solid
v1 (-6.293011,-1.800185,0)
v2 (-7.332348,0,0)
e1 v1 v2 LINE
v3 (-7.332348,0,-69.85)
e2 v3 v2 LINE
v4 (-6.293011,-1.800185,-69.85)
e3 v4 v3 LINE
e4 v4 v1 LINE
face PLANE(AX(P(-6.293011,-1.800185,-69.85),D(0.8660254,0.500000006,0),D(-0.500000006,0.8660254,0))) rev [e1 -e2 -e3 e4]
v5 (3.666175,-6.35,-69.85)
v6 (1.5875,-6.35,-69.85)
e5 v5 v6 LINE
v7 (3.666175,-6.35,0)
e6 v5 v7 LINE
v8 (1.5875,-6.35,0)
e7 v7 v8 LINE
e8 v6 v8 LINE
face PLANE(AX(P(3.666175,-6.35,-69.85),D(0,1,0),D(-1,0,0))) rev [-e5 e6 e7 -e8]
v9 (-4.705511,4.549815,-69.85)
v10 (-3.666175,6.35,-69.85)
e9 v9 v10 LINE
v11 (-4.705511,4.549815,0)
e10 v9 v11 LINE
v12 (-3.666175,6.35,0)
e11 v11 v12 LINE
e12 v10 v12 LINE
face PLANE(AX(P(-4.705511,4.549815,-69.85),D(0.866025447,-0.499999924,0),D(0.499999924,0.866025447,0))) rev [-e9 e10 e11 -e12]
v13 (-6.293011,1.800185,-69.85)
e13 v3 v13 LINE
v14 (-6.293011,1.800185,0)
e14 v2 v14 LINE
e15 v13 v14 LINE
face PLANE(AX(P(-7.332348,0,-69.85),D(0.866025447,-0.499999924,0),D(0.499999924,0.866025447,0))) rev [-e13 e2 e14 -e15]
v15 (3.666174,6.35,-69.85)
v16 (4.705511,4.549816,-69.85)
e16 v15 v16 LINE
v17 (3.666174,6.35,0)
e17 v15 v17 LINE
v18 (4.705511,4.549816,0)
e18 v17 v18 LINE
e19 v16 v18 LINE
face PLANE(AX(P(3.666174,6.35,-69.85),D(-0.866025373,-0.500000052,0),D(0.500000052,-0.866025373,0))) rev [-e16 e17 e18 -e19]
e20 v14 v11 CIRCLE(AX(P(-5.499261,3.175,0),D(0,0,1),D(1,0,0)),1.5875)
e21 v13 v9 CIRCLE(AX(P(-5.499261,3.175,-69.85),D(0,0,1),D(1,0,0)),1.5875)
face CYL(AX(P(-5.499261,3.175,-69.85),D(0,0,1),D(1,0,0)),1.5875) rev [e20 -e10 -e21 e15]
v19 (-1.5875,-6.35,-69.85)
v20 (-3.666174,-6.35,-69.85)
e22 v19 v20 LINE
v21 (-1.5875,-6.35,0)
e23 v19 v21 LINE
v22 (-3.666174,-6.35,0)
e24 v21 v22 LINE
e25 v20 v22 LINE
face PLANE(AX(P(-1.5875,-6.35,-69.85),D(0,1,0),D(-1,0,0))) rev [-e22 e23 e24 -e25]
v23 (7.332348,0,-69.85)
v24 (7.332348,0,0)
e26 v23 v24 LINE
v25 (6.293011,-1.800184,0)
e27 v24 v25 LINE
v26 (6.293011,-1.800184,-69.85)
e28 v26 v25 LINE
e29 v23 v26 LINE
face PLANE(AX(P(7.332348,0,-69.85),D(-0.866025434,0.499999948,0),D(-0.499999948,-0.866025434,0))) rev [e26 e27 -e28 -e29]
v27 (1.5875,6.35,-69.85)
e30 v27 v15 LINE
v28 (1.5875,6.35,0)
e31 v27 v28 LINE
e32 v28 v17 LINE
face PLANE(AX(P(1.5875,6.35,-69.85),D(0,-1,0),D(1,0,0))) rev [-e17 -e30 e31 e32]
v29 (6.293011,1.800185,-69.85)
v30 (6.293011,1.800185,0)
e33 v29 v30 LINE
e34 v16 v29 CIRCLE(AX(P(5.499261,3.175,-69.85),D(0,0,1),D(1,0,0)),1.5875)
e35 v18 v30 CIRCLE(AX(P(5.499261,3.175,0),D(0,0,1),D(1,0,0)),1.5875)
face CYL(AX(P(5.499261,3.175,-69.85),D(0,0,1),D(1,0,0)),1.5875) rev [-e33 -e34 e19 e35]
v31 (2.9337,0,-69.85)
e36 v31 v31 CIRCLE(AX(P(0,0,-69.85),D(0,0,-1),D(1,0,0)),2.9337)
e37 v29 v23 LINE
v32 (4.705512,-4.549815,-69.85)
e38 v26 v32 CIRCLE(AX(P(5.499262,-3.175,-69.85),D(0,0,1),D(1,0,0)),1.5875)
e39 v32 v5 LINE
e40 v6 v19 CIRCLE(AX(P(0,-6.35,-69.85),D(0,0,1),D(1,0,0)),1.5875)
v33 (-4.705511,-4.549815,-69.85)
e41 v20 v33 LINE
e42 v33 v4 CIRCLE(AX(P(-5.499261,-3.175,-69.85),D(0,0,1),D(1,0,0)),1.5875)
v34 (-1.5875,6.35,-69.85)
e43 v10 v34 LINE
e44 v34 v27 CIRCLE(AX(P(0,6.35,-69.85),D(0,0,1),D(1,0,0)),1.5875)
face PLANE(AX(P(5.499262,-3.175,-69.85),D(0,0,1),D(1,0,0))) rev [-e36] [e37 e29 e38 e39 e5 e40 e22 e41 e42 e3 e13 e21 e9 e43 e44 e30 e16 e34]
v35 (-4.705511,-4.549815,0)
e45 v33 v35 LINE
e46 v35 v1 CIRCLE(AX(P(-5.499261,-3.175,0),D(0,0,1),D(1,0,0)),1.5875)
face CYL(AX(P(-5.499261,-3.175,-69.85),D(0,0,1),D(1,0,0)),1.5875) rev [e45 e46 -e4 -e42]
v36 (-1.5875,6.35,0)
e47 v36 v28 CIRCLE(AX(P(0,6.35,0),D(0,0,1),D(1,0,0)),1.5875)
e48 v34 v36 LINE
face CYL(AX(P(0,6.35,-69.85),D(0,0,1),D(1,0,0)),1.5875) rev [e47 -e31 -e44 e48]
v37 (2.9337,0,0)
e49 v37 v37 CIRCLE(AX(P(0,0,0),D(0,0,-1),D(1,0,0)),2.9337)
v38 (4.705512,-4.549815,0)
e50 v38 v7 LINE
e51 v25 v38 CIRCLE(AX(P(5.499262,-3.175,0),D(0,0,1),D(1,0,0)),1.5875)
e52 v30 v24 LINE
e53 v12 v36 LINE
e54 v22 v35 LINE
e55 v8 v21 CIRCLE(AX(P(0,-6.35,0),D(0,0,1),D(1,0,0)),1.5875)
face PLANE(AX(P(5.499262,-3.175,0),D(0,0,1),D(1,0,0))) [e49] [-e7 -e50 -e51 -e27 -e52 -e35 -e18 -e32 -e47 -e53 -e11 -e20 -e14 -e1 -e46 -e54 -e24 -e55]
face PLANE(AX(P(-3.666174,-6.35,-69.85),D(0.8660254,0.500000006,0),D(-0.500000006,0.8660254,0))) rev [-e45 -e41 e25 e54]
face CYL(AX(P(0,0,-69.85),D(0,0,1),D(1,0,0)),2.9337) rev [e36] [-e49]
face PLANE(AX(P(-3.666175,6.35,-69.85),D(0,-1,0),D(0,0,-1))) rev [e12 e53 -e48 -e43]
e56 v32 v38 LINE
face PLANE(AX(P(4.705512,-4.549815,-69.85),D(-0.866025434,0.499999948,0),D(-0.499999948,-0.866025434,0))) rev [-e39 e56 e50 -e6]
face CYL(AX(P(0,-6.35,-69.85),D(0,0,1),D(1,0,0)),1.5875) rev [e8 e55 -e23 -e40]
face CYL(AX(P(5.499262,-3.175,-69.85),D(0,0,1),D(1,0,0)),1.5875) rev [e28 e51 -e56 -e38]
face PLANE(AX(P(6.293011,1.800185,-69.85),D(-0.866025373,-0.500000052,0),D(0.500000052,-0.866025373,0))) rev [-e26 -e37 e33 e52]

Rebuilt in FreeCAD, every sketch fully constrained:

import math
import FreeCAD as App
import Part
import Sketcher
Q = App.Units.Quantity

doc = App.newDocument("Part")
body = doc.addObject("PartDesign::Body", "Body")

sketch1 = body.newObject("Sketcher::SketchObject", "Sketch")
sketch1.AttachmentSupport = (doc.getObject("XY_Plane"), [""])
sketch1.MapMode = "FlatFace"
sketch1.addGeometry([
    Part.LineSegment(App.Vector(4.7, -4.5, 0), App.Vector(3.7, -6.3, 0)),
    Part.LineSegment(App.Vector(3.7, -6.3, 0), App.Vector(1.6, -6.3, 0)),
    Part.ArcOfCircle(Part.Circle(App.Vector(0, -6.3, 0), App.Vector(0, 0, 1), 1.6), math.radians(0), math.radians(180)),
    Part.LineSegment(App.Vector(-1.6, -6.3, 0), App.Vector(-3.7, -6.3, 0)),
    Part.LineSegment(App.Vector(-3.7, -6.3, 0), App.Vector(-4.7, -4.5, 0)),
    Part.ArcOfCircle(Part.Circle(App.Vector(-5.5, -3.2, 0), App.Vector(0, 0, 1), 1.6), math.radians(-60), math.radians(120)),
    Part.LineSegment(App.Vector(-6.3, -1.8, 0), App.Vector(-7.3, 0, 0)),
    Part.LineSegment(App.Vector(-7.3, 0, 0), App.Vector(-6.3, 1.8, 0)),
    Part.ArcOfCircle(Part.Circle(App.Vector(-5.5, 3.2, 0), App.Vector(0, 0, 1), 1.6), math.radians(-120), math.radians(60)),
    Part.LineSegment(App.Vector(-4.7, 4.5, 0), App.Vector(-3.7, 6.4, 0)),
    Part.LineSegment(App.Vector(-3.7, 6.4, 0), App.Vector(-1.6, 6.4, 0)),
    Part.ArcOfCircle(Part.Circle(App.Vector(0, 6.4, 0), App.Vector(0, 0, 1), 1.6), math.radians(180), math.radians(360)),
    Part.LineSegment(App.Vector(1.6, 6.4, 0), App.Vector(3.7, 6.4, 0)),
    Part.LineSegment(App.Vector(3.7, 6.4, 0), App.Vector(4.7, 4.5, 0)),
    Part.ArcOfCircle(Part.Circle(App.Vector(5.5, 3.2, 0), App.Vector(0, 0, 1), 1.6), math.radians(120), math.radians(300)),
    Part.LineSegment(App.Vector(6.3, 1.8, 0), App.Vector(7.3, 0, 0)),
    Part.LineSegment(App.Vector(7.3, 0, 0), App.Vector(6.3, -1.8, 0)),
    Part.ArcOfCircle(Part.Circle(App.Vector(5.5, -3.2, 0), App.Vector(0, 0, 1), 1.6), math.radians(60), math.radians(240)),
    Part.Circle(App.Vector(0, 0, 0), App.Vector(0, 0, 1), 2.9),
], False)
sketch1.addConstraint([
    Sketcher.Constraint("Coincident", 0, 2, 1, 1),
    Sketcher.Constraint("Coincident", 1, 2, 2, 1),
    Sketcher.Constraint("Coincident", 2, 2, 3, 1),
    Sketcher.Constraint("Coincident", 3, 2, 4, 1),
    Sketcher.Constraint("Coincident", 4, 2, 5, 1),
    Sketcher.Constraint("Coincident", 5, 2, 6, 1),
    Sketcher.Constraint("Coincident", 6, 2, 7, 1),
    Sketcher.Constraint("Coincident", 7, 2, 8, 1),
    Sketcher.Constraint("Coincident", 8, 2, 9, 1),
    Sketcher.Constraint("Coincident", 9, 2, 10, 1),
    Sketcher.Constraint("Coincident", 10, 2, 11, 1),
    Sketcher.Constraint("Coincident", 11, 2, 12, 1),
    Sketcher.Constraint("Coincident", 12, 2, 13, 1),
    Sketcher.Constraint("Coincident", 13, 2, 14, 1),
    Sketcher.Constraint("Coincident", 14, 2, 15, 1),
    Sketcher.Constraint("Coincident", 15, 2, 16, 1),
    Sketcher.Constraint("Coincident", 16, 2, 17, 1),
    Sketcher.Constraint("Coincident", 17, 2, 0, 1),
    Sketcher.Constraint("Horizontal", 1),
    Sketcher.Constraint("Horizontal", 3),
    Sketcher.Constraint("Horizontal", 10),
    Sketcher.Constraint("Horizontal", 12),
    Sketcher.Constraint("Coincident", 18, 3, -1, 1),
    Sketcher.Constraint("Equal", 2, 5),
    Sketcher.Constraint("Equal", 5, 8),
    Sketcher.Constraint("Equal", 8, 11),
    Sketcher.Constraint("Equal", 11, 14),
    Sketcher.Constraint("Equal", 14, 17),
    Sketcher.Constraint("Symmetric", 2, 3, 11, 3, -1, 1),
    Sketcher.Constraint("Symmetric", 5, 3, 14, 3, -1, 1),
    Sketcher.Constraint("Symmetric", 8, 3, 17, 3, -1, 1),
    Sketcher.Constraint("Symmetric", 0, 2, 9, 2, -1, 1),
    Sketcher.Constraint("Symmetric", 3, 2, 12, 2, -1, 1),
    Sketcher.Constraint("Symmetric", 6, 2, 15, 2, -1, 1),
    Sketcher.Constraint("Symmetric", 8, 3, 14, 3, -2),
    Sketcher.Constraint("Symmetric", 1, 2, 2, 2, -2),
    Sketcher.Constraint("PointOnObject", 6, 2, -1),
    Sketcher.Constraint("Parallel", 4, 6),
    Sketcher.Constraint("Parallel", 0, 7),
    Sketcher.Constraint("Parallel", 7, 9),
    Sketcher.Constraint("Parallel", 6, 13),
    Sketcher.Constraint("Parallel", 13, 15),
    Sketcher.Constraint("Parallel", 9, 16),
    Sketcher.Constraint("Horizontal", 2, 3, 0, 2),
    Sketcher.Constraint("Horizontal", 8, 2, 13, 2),
    Sketcher.Constraint("Horizontal", 7, 2, 14, 2),
    Sketcher.Constraint("Equal", 4, 6),
    Sketcher.Constraint("Diameter", 18, Q("0.231 in")),
    Sketcher.Constraint("Angle", 0, Q("-119.999997 deg")),
    Sketcher.Constraint("Radius", 2, Q("0.0625 in")),
    Sketcher.Constraint("DistanceY", 2, 3, 11, 3, Q("0.5 in")),
    Sketcher.Constraint("DistanceY", 5, 3, 8, 3, Q("0.25 in")),
    Sketcher.Constraint("DistanceX", 5, 3, 4, 2, Q("0.03125 in")),
    Sketcher.Constraint("DistanceX", 1, 2, 1, 1, Q("2.078674 mm")),
])
pad1 = body.newObject("PartDesign::Pad", "Pad")
pad1.Profile = sketch1
pad1.Length = Q("2.75 in")
pad1.Reversed = True

doc.recompute()
